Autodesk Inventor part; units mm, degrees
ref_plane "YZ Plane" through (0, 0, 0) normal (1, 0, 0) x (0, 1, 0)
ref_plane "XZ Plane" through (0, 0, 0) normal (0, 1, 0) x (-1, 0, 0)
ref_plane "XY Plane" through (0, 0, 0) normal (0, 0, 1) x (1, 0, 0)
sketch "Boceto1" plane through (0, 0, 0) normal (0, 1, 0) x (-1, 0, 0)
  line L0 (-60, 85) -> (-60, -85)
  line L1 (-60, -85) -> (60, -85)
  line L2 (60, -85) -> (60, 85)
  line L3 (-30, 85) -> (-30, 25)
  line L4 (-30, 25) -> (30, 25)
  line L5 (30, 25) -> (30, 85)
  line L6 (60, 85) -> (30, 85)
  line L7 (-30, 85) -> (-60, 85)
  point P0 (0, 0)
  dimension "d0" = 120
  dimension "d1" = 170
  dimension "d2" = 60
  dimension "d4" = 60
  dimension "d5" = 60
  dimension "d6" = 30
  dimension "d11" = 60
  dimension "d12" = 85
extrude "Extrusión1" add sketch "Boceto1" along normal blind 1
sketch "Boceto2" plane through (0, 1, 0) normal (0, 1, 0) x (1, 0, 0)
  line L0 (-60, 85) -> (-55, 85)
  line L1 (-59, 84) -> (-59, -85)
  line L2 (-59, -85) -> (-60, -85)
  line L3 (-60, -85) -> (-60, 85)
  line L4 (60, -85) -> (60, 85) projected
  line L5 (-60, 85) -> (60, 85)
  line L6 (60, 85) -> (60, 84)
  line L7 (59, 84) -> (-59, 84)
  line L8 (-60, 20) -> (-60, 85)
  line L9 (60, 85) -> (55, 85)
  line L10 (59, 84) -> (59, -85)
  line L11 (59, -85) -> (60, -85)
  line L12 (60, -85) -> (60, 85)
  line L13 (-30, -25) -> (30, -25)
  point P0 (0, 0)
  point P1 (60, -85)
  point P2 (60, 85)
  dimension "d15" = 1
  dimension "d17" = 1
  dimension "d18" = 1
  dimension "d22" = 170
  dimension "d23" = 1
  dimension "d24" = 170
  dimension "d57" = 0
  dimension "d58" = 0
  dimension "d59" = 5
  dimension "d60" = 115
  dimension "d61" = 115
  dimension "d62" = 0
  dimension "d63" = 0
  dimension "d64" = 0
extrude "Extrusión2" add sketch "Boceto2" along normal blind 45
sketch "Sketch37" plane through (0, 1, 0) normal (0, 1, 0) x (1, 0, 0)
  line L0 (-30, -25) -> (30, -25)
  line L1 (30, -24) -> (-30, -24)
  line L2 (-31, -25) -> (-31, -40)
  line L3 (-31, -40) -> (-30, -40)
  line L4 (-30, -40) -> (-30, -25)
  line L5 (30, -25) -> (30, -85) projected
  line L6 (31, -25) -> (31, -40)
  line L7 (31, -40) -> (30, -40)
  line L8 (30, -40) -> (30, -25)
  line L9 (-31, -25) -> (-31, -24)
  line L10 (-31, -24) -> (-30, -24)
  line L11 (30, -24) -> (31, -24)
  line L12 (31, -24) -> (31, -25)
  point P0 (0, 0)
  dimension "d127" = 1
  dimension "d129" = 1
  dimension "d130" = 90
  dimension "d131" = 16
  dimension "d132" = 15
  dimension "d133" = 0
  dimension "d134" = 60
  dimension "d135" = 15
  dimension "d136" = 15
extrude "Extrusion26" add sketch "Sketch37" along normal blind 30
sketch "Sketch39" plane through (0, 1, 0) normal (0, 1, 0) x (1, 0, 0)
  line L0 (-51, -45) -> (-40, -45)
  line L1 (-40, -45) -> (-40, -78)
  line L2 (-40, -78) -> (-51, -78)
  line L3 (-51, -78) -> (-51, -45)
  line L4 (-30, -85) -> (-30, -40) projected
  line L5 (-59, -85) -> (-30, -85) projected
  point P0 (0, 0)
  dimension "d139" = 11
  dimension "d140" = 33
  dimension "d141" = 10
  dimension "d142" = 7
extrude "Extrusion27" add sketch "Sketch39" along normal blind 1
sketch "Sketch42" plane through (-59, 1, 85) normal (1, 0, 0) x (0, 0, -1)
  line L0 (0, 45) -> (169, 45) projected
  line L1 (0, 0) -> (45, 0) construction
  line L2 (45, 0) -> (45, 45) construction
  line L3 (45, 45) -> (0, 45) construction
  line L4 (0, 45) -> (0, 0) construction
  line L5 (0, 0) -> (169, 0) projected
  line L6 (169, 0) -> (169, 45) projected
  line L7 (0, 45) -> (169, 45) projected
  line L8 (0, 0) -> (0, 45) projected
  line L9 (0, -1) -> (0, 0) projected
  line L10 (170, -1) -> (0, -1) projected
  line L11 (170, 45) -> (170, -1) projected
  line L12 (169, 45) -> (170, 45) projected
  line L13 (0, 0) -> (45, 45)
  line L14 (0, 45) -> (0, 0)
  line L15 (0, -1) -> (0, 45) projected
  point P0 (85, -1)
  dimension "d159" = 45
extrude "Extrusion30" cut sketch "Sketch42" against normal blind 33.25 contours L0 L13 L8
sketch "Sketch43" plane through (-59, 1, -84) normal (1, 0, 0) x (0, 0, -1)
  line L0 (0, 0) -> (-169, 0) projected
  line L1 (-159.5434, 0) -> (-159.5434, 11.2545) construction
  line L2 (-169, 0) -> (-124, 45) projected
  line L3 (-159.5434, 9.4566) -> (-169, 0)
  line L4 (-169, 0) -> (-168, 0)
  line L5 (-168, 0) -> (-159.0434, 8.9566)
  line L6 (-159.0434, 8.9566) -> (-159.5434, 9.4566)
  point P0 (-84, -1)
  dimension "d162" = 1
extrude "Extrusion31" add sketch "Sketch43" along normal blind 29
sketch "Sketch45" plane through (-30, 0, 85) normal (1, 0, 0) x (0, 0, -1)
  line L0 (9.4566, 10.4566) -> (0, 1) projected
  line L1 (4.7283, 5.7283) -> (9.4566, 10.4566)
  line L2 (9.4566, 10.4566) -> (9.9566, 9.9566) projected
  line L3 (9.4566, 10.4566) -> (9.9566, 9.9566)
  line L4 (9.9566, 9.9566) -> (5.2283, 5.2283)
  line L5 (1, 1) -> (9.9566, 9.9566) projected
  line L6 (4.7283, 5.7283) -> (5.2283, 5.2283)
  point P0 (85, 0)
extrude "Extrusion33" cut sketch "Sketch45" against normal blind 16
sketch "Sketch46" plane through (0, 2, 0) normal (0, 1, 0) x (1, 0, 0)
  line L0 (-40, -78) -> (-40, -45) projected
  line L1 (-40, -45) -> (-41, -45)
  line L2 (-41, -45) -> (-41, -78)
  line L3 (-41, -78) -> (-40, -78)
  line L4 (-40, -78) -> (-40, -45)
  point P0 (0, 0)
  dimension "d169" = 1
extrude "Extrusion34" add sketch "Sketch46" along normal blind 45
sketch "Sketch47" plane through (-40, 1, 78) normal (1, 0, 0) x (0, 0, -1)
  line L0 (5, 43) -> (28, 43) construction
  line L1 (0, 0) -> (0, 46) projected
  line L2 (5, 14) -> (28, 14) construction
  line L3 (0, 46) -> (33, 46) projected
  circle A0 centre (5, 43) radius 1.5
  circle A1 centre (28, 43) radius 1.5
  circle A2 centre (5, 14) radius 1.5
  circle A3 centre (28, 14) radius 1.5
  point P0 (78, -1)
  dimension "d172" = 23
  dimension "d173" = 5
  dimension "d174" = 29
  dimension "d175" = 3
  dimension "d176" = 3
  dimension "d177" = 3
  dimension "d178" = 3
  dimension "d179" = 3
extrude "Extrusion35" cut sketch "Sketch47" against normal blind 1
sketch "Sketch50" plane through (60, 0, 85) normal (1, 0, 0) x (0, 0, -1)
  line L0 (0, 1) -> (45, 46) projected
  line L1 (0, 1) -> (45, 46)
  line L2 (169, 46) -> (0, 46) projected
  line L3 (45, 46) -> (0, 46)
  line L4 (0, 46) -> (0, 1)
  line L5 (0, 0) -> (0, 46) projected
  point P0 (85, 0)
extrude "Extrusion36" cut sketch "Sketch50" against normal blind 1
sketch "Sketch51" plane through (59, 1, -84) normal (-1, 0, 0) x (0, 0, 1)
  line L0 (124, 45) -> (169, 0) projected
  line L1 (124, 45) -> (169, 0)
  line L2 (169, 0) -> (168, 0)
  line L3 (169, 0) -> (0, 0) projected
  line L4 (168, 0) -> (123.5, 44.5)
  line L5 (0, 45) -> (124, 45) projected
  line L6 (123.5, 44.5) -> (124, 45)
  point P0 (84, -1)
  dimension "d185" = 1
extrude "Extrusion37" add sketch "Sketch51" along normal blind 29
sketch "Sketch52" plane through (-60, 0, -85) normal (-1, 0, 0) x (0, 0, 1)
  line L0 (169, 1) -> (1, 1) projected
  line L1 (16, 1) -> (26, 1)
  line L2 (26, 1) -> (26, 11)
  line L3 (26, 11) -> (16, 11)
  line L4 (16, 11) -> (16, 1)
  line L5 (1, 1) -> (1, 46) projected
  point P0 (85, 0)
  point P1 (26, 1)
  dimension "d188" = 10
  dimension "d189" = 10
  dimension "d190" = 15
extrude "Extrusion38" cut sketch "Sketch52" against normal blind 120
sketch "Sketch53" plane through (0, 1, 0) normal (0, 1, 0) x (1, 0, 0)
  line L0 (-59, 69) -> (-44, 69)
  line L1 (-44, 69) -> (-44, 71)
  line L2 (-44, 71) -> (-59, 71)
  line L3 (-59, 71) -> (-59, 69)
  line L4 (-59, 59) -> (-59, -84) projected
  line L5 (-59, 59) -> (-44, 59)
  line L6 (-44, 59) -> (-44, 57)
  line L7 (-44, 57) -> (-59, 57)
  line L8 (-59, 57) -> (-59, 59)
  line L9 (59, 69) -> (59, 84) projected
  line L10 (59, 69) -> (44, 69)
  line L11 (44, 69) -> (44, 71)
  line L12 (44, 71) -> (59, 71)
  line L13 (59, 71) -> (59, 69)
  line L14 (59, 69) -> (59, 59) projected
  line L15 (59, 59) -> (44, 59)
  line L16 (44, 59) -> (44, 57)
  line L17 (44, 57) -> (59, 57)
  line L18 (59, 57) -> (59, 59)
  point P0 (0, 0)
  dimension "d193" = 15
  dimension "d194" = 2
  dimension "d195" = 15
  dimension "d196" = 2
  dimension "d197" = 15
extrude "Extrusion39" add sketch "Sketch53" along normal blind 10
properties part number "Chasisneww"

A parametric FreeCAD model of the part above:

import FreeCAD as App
import Part
import Sketcher
from FreeCAD import Vector
Q = App.Units.Quantity


def add_polygon(sketch, points):
    """Adds a closed chain of lines whose ends are joined by coincident constraints."""
    first, n = sketch.GeometryCount, len(points)
    for a, b in zip(points, points[1:] + points[:1]):
        sketch.addGeometry(Part.LineSegment(App.Vector(*a, 0), App.Vector(*b, 0)), False)
    for i in range(n):
        sketch.addConstraint(Sketcher.Constraint("Coincident", first + i, 2, first + (i + 1) % n, 1))

doc = App.newDocument("Part")
body = doc.addObject("PartDesign::Body", "Body")

sketch1 = body.newObject("Sketcher::SketchObject", "Sketch")
sketch1.AttachmentSupport = (doc.getObject("XZ_Plane"), [""])
sketch1.MapMode = "FlatFace"
add_polygon(sketch1, [(30, 85), (60, 85), (60, -85), (-60, -85), (-60, 85), (-30, 85), (-30, 25), (30, 25)])
sketch1.addConstraint([
    Sketcher.Constraint("Horizontal", 0),
    Sketcher.Constraint("Vertical", 1),
    Sketcher.Constraint("Horizontal", 2),
    Sketcher.Constraint("Vertical", 3),
    Sketcher.Constraint("Horizontal", 4),
    Sketcher.Constraint("Vertical", 5),
    Sketcher.Constraint("Horizontal", 6),
    Sketcher.Constraint("Vertical", 7),
    Sketcher.Constraint("Symmetric", 0, 2, 2, 2, -1, 1),
    Sketcher.Constraint("Symmetric", 4, 2, 7, 2, -2),
    Sketcher.Constraint("Equal", 6, 5),
    Sketcher.Constraint("DistanceX", 0, 1, 0, 2, Q("30 mm")),
    Sketcher.Constraint("DistanceX", 2, 2, 2, 1, Q("120 mm")),
    Sketcher.Constraint("DistanceY", 1, 2, 1, 1, Q("170 mm")),
])
pad1 = body.newObject("PartDesign::Pad", "Pad")
pad1.Profile = sketch1
pad1.Length = 1
pad1.Reversed = True

sketch2 = body.newObject("Sketcher::SketchObject", "Sketch001")
sketch2.AttachmentSupport = (doc.getObject("XZ_Plane"), [""])
sketch2.MapMode = "FlatFace"
sketch2.AttachmentOffset = App.Placement(Vector(0, 0, -1), App.Rotation())
add_polygon(sketch2, [(60, -85), (-60, -85), (-60, 85), (-59, 85), (-59, -84), (59, -84), (59, 85), (60, 85)])
sketch2.addConstraint([
    Sketcher.Constraint("Horizontal", 0),
    Sketcher.Constraint("Vertical", 1),
    Sketcher.Constraint("Horizontal", 2),
    Sketcher.Constraint("Vertical", 3),
    Sketcher.Constraint("Horizontal", 4),
    Sketcher.Constraint("Vertical", 5),
    Sketcher.Constraint("Horizontal", 6),
    Sketcher.Constraint("Vertical", 7),
    Sketcher.Constraint("Symmetric", 0, 2, 6, 2, -1, 1),
    Sketcher.Constraint("Symmetric", 2, 2, 5, 2, -2),
    Sketcher.Constraint("DistanceX", 2, 1, 2, 2, Q("1 mm")),
    Sketcher.Constraint("DistanceY", 1, 1, 1, 2, Q("170 mm")),
    Sketcher.Constraint("DistanceY", 0, 2, 3, 2, Q("1 mm")),
    Sketcher.Constraint("DistanceX", 0, 2, 0, 1, Q("120 mm")),
])
pad2 = body.newObject("PartDesign::Pad", "Pad001")
pad2.Profile = sketch2
pad2.Length = 45
pad2.Reversed = True

sketch3 = body.newObject("Sketcher::SketchObject", "Sketch002")
sketch3.AttachmentSupport = (doc.getObject("XZ_Plane"), [""])
sketch3.MapMode = "FlatFace"
sketch3.AttachmentOffset = App.Placement(Vector(0, 0, -1), App.Rotation())
add_polygon(sketch3, [(-30, 40), (-30, 25), (30, 25), (30, 40), (31, 40), (31, 24), (-31, 24), (-31, 40)])
sketch3.addConstraint([
    Sketcher.Constraint("Vertical", 0),
    Sketcher.Constraint("Horizontal", 1),
    Sketcher.Constraint("Vertical", 2),
    Sketcher.Constraint("Horizontal", 3),
    Sketcher.Constraint("Vertical", 4),
    Sketcher.Constraint("Horizontal", 5),
    Sketcher.Constraint("Vertical", 6),
    Sketcher.Constraint("Horizontal", 7),
    Sketcher.Constraint("Symmetric", 3, 2, 6, 2, -2),
    Sketcher.Constraint("Equal", 3, 7),
    Sketcher.Constraint("DistanceX", 1, 1, 1, 2, Q("60 mm")),
    Sketcher.Constraint("DistanceX", 3, 1, 3, 2, Q("1 mm")),
    Sketcher.Constraint("DistanceY", 0, 2, 0, 1, Q("15 mm")),
    Sketcher.Constraint("DistanceY", 4, 2, 4, 1, Q("16 mm")),
    Sketcher.Constraint("DistanceY", -1, 1, 0, 2, Q("25 mm")),
])
pad3 = body.newObject("PartDesign::Pad", "Pad002")
pad3.Profile = sketch3
pad3.Length = 30
pad3.Reversed = True

sketch4 = body.newObject("Sketcher::SketchObject", "Sketch003")
sketch4.AttachmentSupport = (doc.getObject("XZ_Plane"), [""])
sketch4.MapMode = "FlatFace"
sketch4.AttachmentOffset = App.Placement(Vector(0, 0, -1), App.Rotation())
add_polygon(sketch4, [(-40, 45), (-51, 45), (-51, 78), (-40, 78)])
sketch4.addConstraint([
    Sketcher.Constraint("Horizontal", 0),
    Sketcher.Constraint("Vertical", 1),
    Sketcher.Constraint("Horizontal", 2),
    Sketcher.Constraint("Vertical", 3),
    Sketcher.Constraint("DistanceX", 0, 2, 0, 1, Q("11 mm")),
    Sketcher.Constraint("DistanceY", 1, 1, 1, 2, Q("33 mm")),
    Sketcher.Constraint("DistanceX", 0, 2, -1, 1, Q("51 mm")),
    Sketcher.Constraint("DistanceY", -1, 1, 0, 2, Q("45 mm")),
])
pad4 = body.newObject("PartDesign::Pad", "Pad003")
pad4.Profile = sketch4
pad4.Length = 1
pad4.Reversed = True

sketch5 = body.newObject("Sketcher::SketchObject", "Sketch004")
sketch5.AttachmentSupport = (doc.getObject("YZ_Plane"), [""])
sketch5.MapMode = "FlatFace"
sketch5.AttachmentOffset = App.Placement(Vector(0, 0, -59), App.Rotation())
add_polygon(sketch5, [(46, 40), (46, 85), (1, 85)])
sketch5.addConstraint([
    Sketcher.Constraint("Vertical", 0),
    Sketcher.Constraint("Horizontal", 1),
    Sketcher.Constraint("Equal", 1, 0),
    Sketcher.Constraint("DistanceX", 1, 2, 1, 1, Q("45 mm")),
    Sketcher.Constraint("DistanceX", -1, 1, 0, 2, Q("46 mm")),
    Sketcher.Constraint("DistanceY", -1, 1, 0, 2, Q("85 mm")),
])
pocket1 = body.newObject("PartDesign::Pocket", "Pocket")
pocket1.Profile = sketch5
pocket1.Length = 33.25

sketch6 = body.newObject("Sketcher::SketchObject", "Sketch005")
sketch6.AttachmentSupport = (doc.getObject("YZ_Plane"), [""])
sketch6.MapMode = "FlatFace"
sketch6.AttachmentOffset = App.Placement(Vector(0, 0, -59), App.Rotation())
add_polygon(sketch6, [(1, 85), (1, 84), (10, 75), (10.5, 75.5)])
sketch6.addConstraint([
    Sketcher.Constraint("Vertical", 0),
    Sketcher.Constraint("Perpendicular", 1, 2),
    Sketcher.Constraint("Perpendicular", 2, 3),
    Sketcher.Constraint("DistanceY", 0, 2, 0, 1, Q("1 mm")),
    Sketcher.Constraint("DistanceX", -1, 1, 0, 2, Q("1 mm")),
    Sketcher.Constraint("Angle", 1, Q("-45 deg")),
    Sketcher.Constraint("DistanceY", -1, 1, 0, 2, Q("84 mm")),
    Sketcher.Constraint("Distance", 1, Q("12.6665 mm")),
])
pad5 = body.newObject("PartDesign::Pad", "Pad004")
pad5.Profile = sketch6
pad5.Length = 29

sketch7 = body.newObject("Sketcher::SketchObject", "Sketch006")
sketch7.AttachmentSupport = (doc.getObject("YZ_Plane"), [""])
sketch7.MapMode = "FlatFace"
sketch7.AttachmentOffset = App.Placement(Vector(0, 0, -30), App.Rotation())
add_polygon(sketch7, [(10, 75), (10.5, 75.5), (5.7, 80.3), (5.2, 79.8)])
sketch7.addConstraint([
    Sketcher.Constraint("Perpendicular", 0, 1),
    Sketcher.Constraint("Perpendicular", 1, 2),
    Sketcher.Constraint("Perpendicular", 2, 3),
    Sketcher.Constraint("Angle", 0, Q("45 deg")),
    Sketcher.Constraint("DistanceX", 2, 2, 1, 2, Q("0.5 mm")),
    Sketcher.Constraint("Distance", 1, Q("6.6868 mm")),
    Sketcher.Constraint("DistanceX", -1, 1, 0, 2, Q("10.4566 mm")),
    Sketcher.Constraint("DistanceY", -1, 1, 0, 2, Q("75.5434 mm")),
])
pocket2 = body.newObject("PartDesign::Pocket", "Pocket001")
pocket2.Profile = sketch7
pocket2.Length = 16

sketch8 = body.newObject("Sketcher::SketchObject", "Sketch007")
sketch8.AttachmentSupport = (doc.getObject("XZ_Plane"), [""])
sketch8.MapMode = "FlatFace"
sketch8.AttachmentOffset = App.Placement(Vector(0, 0, -2), App.Rotation())
add_polygon(sketch8, [(-41, 78), (-40, 78), (-40, 45), (-41, 45)])
sketch8.addConstraint([
    Sketcher.Constraint("Horizontal", 0),
    Sketcher.Constraint("Vertical", 1),
    Sketcher.Constraint("Horizontal", 2),
    Sketcher.Constraint("Vertical", 3),
    Sketcher.Constraint("DistanceX", 0, 1, 0, 2, Q("1 mm")),
    Sketcher.Constraint("DistanceY", 1, 2, 1, 1, Q("33 mm")),
    Sketcher.Constraint("DistanceX", 0, 2, -1, 1, Q("40 mm")),
    Sketcher.Constraint("DistanceY", -1, 1, 0, 2, Q("78 mm")),
])
pad6 = body.newObject("PartDesign::Pad", "Pad005")
pad6.Profile = sketch8
pad6.Length = 45
pad6.Reversed = True

sketch9 = body.newObject("Sketcher::SketchObject", "Sketch008")
sketch9.AttachmentSupport = (doc.getObject("YZ_Plane"), [""])
sketch9.MapMode = "FlatFace"
sketch9.AttachmentOffset = App.Placement(Vector(0, 0, -40), App.Rotation())
sketch9.addGeometry([
    Part.Circle(Vector(44, 73, 0), Vector(0, 0, 1), 1.5),
    Part.Circle(Vector(44, 50, 0), Vector(0, 0, 1), 1.5),
    Part.Circle(Vector(15, 73, 0), Vector(0, 0, 1), 1.5),
    Part.Circle(Vector(15, 50, 0), Vector(0, 0, 1), 1.5),
], False)
sketch9.addConstraint([
    Sketcher.Constraint("Equal", 0, 1),
    Sketcher.Constraint("Equal", 1, 2),
    Sketcher.Constraint("Equal", 2, 3),
    Sketcher.Constraint("Horizontal", 0, 3, 2, 3),
    Sketcher.Constraint("Horizontal", 1, 3, 3, 3),
    Sketcher.Constraint("Vertical", 0, 3, 1, 3),
    Sketcher.Constraint("Vertical", 2, 3, 3, 3),
    Sketcher.Constraint("Diameter", 0, Q("3 mm")),
    Sketcher.Constraint("DistanceY", 1, 3, 0, 3, Q("23 mm")),
    Sketcher.Constraint("DistanceX", 2, 3, 0, 3, Q("29 mm")),
    Sketcher.Constraint("DistanceX", -1, 1, 0, 3, Q("44 mm")),
    Sketcher.Constraint("DistanceY", -1, 1, 0, 3, Q("73 mm")),
])
pocket3 = body.newObject("PartDesign::Pocket", "Pocket002")
pocket3.Profile = sketch9
pocket3.Length = 1

sketch10 = body.newObject("Sketcher::SketchObject", "Sketch009")
sketch10.AttachmentSupport = (doc.getObject("YZ_Plane"), [""])
sketch10.MapMode = "FlatFace"
sketch10.AttachmentOffset = App.Placement(Vector(0, 0, 60), App.Rotation())
add_polygon(sketch10, [(46, 85), (1, 85), (46, 40)])
sketch10.addConstraint([
    Sketcher.Constraint("Horizontal", 0),
    Sketcher.Constraint("Vertical", 2),
    Sketcher.Constraint("Equal", 0, 2),
    Sketcher.Constraint("DistanceX", 0, 2, 0, 1, Q("45 mm")),
    Sketcher.Constraint("DistanceX", -1, 1, 0, 2, Q("1 mm")),
    Sketcher.Constraint("DistanceY", -1, 1, 0, 2, Q("85 mm")),
])
pocket4 = body.newObject("PartDesign::Pocket", "Pocket003")
pocket4.Profile = sketch10
pocket4.Length = 1

sketch11 = body.newObject("Sketcher::SketchObject", "Sketch010")
sketch11.AttachmentSupport = (doc.getObject("YZ_Plane"), [""])
sketch11.MapMode = "FlatFace"
sketch11.AttachmentOffset = App.Placement(Vector(0, 0, 59), App.Rotation())
add_polygon(sketch11, [(1, 85), (46, 40), (45.5, 39.5), (1, 84)])
sketch11.addConstraint([
    Sketcher.Constraint("Vertical", 3),
    Sketcher.Constraint("Perpendicular", 0, 1),
    Sketcher.Constraint("Perpendicular", 1, 2),
    Sketcher.Constraint("DistanceY", 3, 1, 3, 2, Q("1 mm")),
    Sketcher.Constraint("DistanceX", -1, 1, 2, 2, Q("1 mm")),
    Sketcher.Constraint("Angle", 0, Q("-45 deg")),
    Sketcher.Constraint("DistanceX", -1, 1, 0, 2, Q("46 mm")),
    Sketcher.Constraint("DistanceY", -1, 1, 0, 2, Q("40 mm")),
])
pad7 = body.newObject("PartDesign::Pad", "Pad006")
pad7.Profile = sketch11
pad7.Length = 29
pad7.Reversed = True

sketch12 = body.newObject("Sketcher::SketchObject", "Sketch011")
sketch12.AttachmentSupport = (doc.getObject("YZ_Plane"), [""])
sketch12.MapMode = "FlatFace"
sketch12.AttachmentOffset = App.Placement(Vector(0, 0, -60), App.Rotation())
add_polygon(sketch12, [(1, -69), (1, -59), (11, -59), (11, -69)])
sketch12.addConstraint([
    Sketcher.Constraint("Vertical", 0),
    Sketcher.Constraint("Horizontal", 1),
    Sketcher.Constraint("Vertical", 2),
    Sketcher.Constraint("Horizontal", 3),
    Sketcher.Constraint("Equal", 3, 0),
    Sketcher.Constraint("DistanceX", 1, 1, 1, 2, Q("10 mm")),
    Sketcher.Constraint("DistanceX", -1, 1, 0, 2, Q("1 mm")),
    Sketcher.Constraint("DistanceY", 0, 2, -1, 1, Q("59 mm")),
])
pocket5 = body.newObject("PartDesign::Pocket", "Pocket004")
pocket5.Profile = sketch12
pocket5.Length = 120
pocket5.Reversed = True

sketch13 = body.newObject("Sketcher::SketchObject", "Sketch012")
sketch13.AttachmentSupport = (doc.getObject("XZ_Plane"), [""])
sketch13.MapMode = "FlatFace"
sketch13.AttachmentOffset = App.Placement(Vector(0, 0, -1), App.Rotation())
add_polygon(sketch13, [(-59, -71), (-59, -69), (-44, -69), (-44, -71)])
add_polygon(sketch13, [(-44, -59), (-59, -59), (-59, -57), (-44, -57)])
add_polygon(sketch13, [(44, -69), (59, -69), (59, -71), (44, -71)])
add_polygon(sketch13, [(59, -57), (59, -59), (44, -59), (44, -57)])
sketch13.addConstraint([
    Sketcher.Constraint("Vertical", 0),
    Sketcher.Constraint("Horizontal", 1),
    Sketcher.Constraint("Vertical", 2),
    Sketcher.Constraint("Horizontal", 3),
    Sketcher.Constraint("Horizontal", 4),
    Sketcher.Constraint("Vertical", 5),
    Sketcher.Constraint("Horizontal", 6),
    Sketcher.Constraint("Vertical", 7),
    Sketcher.Constraint("Horizontal", 8),
    Sketcher.Constraint("Vertical", 9),
    Sketcher.Constraint("Horizontal", 10),
    Sketcher.Constraint("Vertical", 11),
    Sketcher.Constraint("Vertical", 12),
    Sketcher.Constraint("Horizontal", 13),
    Sketcher.Constraint("Vertical", 14),
    Sketcher.Constraint("Horizontal", 15),
    Sketcher.Constraint("Symmetric", 0, 2, 8, 2, -2),
    Sketcher.Constraint("Symmetric", 2, 2, 10, 2, -2),
    Sketcher.Constraint("Symmetric", 4, 2, 12, 2, -2),
    Sketcher.Constraint("Symmetric", 6, 2, 14, 2, -2),
    Sketcher.Constraint("Vertical", 3, 2, 4, 2),
    Sketcher.Constraint("Vertical", 2, 2, 6, 2),
    Sketcher.Constraint("Equal", 2, 5),
    Sketcher.Constraint("DistanceX", 1, 1, 1, 2, Q("15 mm")),
    Sketcher.Constraint("DistanceY", 0, 1, 0, 2, Q("2 mm")),
    Sketcher.Constraint("DistanceX", 0, 2, -1, 1, Q("59 mm")),
    Sketcher.Constraint("DistanceY", 0, 2, -1, 1, Q("69 mm")),
    Sketcher.Constraint("DistanceY", 4, 2, -1, 1, Q("59 mm")),
])
pad8 = body.newObject("PartDesign::Pad", "Pad007")
pad8.Profile = sketch13
pad8.Length = 10
pad8.Reversed = True

doc.recompute()
